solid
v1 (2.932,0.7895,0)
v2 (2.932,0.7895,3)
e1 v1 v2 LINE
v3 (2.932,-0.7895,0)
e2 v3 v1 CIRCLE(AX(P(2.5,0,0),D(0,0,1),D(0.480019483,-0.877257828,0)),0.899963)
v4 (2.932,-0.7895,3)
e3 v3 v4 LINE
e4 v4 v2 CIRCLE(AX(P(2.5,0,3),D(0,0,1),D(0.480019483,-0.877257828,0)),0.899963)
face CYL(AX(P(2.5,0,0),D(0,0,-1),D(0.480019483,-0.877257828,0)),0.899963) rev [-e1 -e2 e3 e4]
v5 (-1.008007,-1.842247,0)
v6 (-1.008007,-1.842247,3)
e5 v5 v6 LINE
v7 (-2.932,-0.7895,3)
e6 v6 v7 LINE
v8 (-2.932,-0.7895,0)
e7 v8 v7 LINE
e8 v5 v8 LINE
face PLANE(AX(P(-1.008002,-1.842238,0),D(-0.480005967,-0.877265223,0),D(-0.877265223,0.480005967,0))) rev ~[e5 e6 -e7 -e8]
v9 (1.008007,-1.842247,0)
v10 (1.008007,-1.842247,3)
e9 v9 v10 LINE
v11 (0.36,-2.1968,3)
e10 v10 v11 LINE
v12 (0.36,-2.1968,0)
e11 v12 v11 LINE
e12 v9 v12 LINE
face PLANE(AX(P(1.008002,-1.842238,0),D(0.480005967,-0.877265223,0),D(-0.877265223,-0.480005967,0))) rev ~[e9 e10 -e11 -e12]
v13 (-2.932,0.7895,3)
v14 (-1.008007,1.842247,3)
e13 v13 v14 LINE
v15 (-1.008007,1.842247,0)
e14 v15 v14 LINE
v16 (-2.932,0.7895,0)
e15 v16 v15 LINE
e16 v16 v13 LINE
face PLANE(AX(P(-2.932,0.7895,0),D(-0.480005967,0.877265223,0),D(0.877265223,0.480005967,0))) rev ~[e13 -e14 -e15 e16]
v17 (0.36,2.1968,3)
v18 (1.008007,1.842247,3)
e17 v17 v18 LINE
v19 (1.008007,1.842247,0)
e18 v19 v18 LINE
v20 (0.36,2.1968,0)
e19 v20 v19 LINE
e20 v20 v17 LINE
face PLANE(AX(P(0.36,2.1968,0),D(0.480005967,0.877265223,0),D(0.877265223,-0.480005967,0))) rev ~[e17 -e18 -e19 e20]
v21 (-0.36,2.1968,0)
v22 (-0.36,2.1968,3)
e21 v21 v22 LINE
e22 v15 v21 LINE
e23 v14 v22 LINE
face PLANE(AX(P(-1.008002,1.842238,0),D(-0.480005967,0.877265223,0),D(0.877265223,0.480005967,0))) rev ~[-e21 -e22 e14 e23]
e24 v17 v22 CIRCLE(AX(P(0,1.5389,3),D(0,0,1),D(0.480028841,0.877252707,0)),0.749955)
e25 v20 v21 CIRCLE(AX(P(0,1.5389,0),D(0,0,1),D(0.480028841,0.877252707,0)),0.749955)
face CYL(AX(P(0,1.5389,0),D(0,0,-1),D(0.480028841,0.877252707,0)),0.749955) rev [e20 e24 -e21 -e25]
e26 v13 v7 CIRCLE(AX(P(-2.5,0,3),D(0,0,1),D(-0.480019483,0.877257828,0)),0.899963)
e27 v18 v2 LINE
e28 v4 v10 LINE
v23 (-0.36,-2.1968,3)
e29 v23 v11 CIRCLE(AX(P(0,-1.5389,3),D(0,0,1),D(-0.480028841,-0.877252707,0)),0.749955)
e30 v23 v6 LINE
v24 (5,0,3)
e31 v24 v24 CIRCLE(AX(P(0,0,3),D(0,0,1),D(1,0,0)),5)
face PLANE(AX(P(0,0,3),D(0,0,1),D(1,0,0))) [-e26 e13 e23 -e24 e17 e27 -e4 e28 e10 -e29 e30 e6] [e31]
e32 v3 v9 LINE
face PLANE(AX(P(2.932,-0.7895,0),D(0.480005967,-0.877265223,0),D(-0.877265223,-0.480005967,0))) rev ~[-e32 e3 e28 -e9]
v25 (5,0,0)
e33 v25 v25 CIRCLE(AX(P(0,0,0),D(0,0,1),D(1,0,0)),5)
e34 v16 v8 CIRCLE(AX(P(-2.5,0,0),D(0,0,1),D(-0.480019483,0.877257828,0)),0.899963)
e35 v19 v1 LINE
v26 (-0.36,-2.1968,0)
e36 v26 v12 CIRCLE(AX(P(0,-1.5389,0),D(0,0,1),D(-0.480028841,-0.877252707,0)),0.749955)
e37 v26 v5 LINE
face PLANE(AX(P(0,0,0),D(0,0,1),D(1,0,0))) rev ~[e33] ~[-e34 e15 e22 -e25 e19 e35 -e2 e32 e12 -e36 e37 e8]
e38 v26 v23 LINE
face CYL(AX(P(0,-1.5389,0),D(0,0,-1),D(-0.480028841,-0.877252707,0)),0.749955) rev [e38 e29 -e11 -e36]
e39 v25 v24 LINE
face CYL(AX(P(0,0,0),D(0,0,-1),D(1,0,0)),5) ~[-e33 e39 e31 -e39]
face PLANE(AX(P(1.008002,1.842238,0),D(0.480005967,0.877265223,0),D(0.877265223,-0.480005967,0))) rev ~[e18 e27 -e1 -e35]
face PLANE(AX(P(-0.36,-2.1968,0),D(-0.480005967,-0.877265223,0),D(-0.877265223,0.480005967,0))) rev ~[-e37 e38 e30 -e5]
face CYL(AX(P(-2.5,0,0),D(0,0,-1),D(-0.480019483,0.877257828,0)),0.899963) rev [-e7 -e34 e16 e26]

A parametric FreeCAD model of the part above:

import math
import FreeCAD as App
import Part
import Sketcher

V = App.Vector
Q = App.Units.Quantity

doc = App.newDocument("Part")
params = doc.addObject("Spreadsheet::Sheet", "Params")
for row, (alias, value) in enumerate([
    ("sketch1_diameter", "10 mm"),
    ("sketch1_radius", "0.9 mm"),
    ("sketch1_radius2", "0.75 mm"),
    ("pad1_length", "3 mm"),
], start=1):
    params.set(f"A{row}", alias)
    params.set(f"B{row}", "=" + value)
    params.setAlias(f"B{row}", alias)

body = doc.addObject("PartDesign::Body", "Body")

# Sketch on XY plane
sketch1 = body.newObject("Sketcher::SketchObject", "Sketch")
sketch1.AttachmentSupport = (doc.getObject("XY_Plane"), [""])
sketch1.MapMode = "FlatFace"
sketch1.addGeometry(Part.Circle(V(0, 0, 0), V(0, 0, 1), 5), False)
sketch1.addGeometry(Part.LineSegment(V(0.4, 2.2, 0), V(2.9, 0.8, 0)), False)
sketch1.addGeometry(Part.ArcOfCircle(Part.Circle(V(2.5, 0, 0), V(0, 0, 1), 0.9), math.radians(-61), math.radians(61)), False)
sketch1.addGeometry(Part.LineSegment(V(2.9, -0.8, 0), V(0.4, -2.2, 0)), False)
sketch1.addGeometry(Part.ArcOfCircle(Part.Circle(V(0, -1.5, 0), V(0, 0, 1), 0.7), math.radians(-119), math.radians(-61)), False)
sketch1.addGeometry(Part.LineSegment(V(-0.4, -2.2, 0), V(-2.9, -0.8, 0)), False)
sketch1.addGeometry(Part.ArcOfCircle(Part.Circle(V(-2.5, 0, 0), V(0, 0, 1), 0.9), math.radians(119), math.radians(241)), False)
sketch1.addGeometry(Part.LineSegment(V(-2.9, 0.8, 0), V(-0.4, 2.2, 0)), False)
sketch1.addGeometry(Part.ArcOfCircle(Part.Circle(V(0, 1.5, 0), V(0, 0, 1), 0.7), math.radians(61), math.radians(119)), False)
sketch1.addConstraint(Sketcher.Constraint("Tangent", 1, 2, 2, 2))
sketch1.addConstraint(Sketcher.Constraint("Tangent", 2, 1, 3, 1))
sketch1.addConstraint(Sketcher.Constraint("Tangent", 3, 2, 4, 2))
sketch1.addConstraint(Sketcher.Constraint("Tangent", 4, 1, 5, 1))
sketch1.addConstraint(Sketcher.Constraint("Tangent", 5, 2, 6, 2))
sketch1.addConstraint(Sketcher.Constraint("Tangent", 6, 1, 7, 1))
sketch1.addConstraint(Sketcher.Constraint("Tangent", 7, 2, 8, 2))
sketch1.addConstraint(Sketcher.Constraint("Tangent", 8, 1, 1, 1))
sketch1.addConstraint(Sketcher.Constraint("Coincident", 0, 3, -1, 1))
sketch1.addConstraint(Sketcher.Constraint("Equal", 2, 6))
sketch1.addConstraint(Sketcher.Constraint("Equal", 4, 8))
sketch1.addConstraint(Sketcher.Constraint("Symmetric", 2, 3, 6, 3, -1, 1))
sketch1.addConstraint(Sketcher.Constraint("Symmetric", 4, 3, 8, 3, -1, 1))
sketch1.addConstraint(Sketcher.Constraint("Symmetric", 3, 2, 4, 1, -2))
sketch1.addConstraint(Sketcher.Constraint("Diameter", 0, Q("10 mm")))
sketch1.addConstraint(Sketcher.Constraint("Radius", 2, Q("0.9 mm")))
sketch1.addConstraint(Sketcher.Constraint("Radius", 4, Q("0.75 mm")))
sketch1.addConstraint(Sketcher.Constraint("DistanceX", 6, 3, 2, 3, Q("5 mm")))
sketch1.addConstraint(Sketcher.Constraint("DistanceX", -1, 1, 3, 2, Q("0.36 mm")))
sketch1.setExpression("Constraints[14]", "Params.sketch1_diameter")
sketch1.setExpression("Constraints[15]", "Params.sketch1_radius")
sketch1.setExpression("Constraints[16]", "Params.sketch1_radius2")
pad1 = body.newObject("PartDesign::Pad", "Pad")
pad1.Profile = sketch1
pad1.setExpression("Length", "Params.pad1_length")

doc.recompute()
